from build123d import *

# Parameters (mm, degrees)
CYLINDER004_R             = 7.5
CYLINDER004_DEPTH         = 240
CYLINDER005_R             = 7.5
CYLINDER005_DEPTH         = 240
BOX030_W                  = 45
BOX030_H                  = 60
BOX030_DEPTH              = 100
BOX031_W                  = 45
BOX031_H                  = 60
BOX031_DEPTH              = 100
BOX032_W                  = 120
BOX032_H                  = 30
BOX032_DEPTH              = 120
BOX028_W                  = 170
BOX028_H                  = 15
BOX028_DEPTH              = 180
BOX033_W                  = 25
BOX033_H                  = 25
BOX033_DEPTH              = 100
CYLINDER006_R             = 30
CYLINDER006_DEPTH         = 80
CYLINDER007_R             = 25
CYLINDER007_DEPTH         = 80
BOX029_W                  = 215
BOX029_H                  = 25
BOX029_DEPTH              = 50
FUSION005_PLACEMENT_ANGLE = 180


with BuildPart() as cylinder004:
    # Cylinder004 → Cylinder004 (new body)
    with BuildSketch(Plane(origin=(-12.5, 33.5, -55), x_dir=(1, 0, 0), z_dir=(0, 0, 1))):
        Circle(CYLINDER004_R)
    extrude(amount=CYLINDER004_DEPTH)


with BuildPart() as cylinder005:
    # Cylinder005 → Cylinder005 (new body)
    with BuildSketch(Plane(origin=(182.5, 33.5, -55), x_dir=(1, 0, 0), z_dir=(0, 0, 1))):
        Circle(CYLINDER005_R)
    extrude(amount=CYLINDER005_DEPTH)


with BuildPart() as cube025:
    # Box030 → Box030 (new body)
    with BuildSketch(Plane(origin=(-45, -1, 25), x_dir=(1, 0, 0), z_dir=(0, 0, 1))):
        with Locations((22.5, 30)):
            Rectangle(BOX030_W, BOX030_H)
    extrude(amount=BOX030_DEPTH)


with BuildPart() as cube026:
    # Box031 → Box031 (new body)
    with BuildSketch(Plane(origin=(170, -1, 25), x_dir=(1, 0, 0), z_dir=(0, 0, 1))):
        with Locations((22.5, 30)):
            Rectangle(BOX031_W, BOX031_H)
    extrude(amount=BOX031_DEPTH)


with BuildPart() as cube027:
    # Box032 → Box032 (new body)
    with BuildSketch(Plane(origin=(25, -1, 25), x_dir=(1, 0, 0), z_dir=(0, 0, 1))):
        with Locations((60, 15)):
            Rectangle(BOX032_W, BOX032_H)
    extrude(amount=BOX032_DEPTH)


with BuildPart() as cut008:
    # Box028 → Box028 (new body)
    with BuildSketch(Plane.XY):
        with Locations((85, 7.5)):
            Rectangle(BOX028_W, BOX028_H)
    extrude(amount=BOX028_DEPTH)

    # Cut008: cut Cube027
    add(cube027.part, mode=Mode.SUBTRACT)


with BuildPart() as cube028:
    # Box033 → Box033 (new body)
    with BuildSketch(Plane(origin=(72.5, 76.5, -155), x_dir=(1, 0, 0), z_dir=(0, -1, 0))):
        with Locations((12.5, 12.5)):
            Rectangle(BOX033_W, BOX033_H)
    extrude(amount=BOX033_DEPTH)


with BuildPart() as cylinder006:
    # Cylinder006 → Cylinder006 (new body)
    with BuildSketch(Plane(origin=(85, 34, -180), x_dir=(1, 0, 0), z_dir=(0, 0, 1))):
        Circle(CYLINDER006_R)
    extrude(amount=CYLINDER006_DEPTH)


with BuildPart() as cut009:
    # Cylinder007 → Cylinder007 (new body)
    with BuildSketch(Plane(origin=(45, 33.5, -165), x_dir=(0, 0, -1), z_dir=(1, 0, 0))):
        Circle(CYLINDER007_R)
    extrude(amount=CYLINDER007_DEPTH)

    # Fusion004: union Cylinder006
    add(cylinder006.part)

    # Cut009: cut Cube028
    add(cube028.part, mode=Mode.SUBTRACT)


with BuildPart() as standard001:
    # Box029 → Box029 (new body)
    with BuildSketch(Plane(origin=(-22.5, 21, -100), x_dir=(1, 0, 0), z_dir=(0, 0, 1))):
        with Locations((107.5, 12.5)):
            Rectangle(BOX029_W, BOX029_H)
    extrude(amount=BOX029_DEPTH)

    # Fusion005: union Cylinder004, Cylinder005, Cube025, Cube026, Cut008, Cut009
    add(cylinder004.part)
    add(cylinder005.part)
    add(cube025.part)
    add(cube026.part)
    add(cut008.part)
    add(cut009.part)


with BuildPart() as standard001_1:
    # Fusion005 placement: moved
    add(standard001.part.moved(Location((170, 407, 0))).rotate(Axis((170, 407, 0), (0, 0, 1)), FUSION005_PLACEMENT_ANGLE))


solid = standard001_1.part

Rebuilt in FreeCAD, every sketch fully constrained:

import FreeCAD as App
import Part
import Sketcher

doc = App.newDocument("Part")
body = doc.addObject("PartDesign::Body", "Body")

# Sketch on XY plane
sketch1 = body.newObject("Sketcher::SketchObject", "Sketch")
sketch1.AttachmentSupport = (doc.getObject("XY_Plane"), [""])
sketch1.MapMode = "FlatFace"
sketch1.AttachmentOffset = App.Placement(App.Vector(0, 0, -55), App.Rotation())
sketch1.addGeometry(Part.Circle(App.Vector(-12, 34, 0), App.Vector(0, 0, 1), 8), False)
sketch1.addConstraint([
    Sketcher.Constraint("Diameter", 0, 15.0),
    Sketcher.Constraint("DistanceX", 0, 3, -1, 1, 12.5),
    Sketcher.Constraint("DistanceY", -1, 1, 0, 3, 33.5),
])
pad1 = body.newObject("PartDesign::Pad", "Pad")
pad1.Profile = sketch1
pad1.Length = 240
body2 = doc.addObject("PartDesign::Body", "Body001")

# Sketch on XY plane
sketch2 = body2.newObject("Sketcher::SketchObject", "Sketch001")
sketch2.AttachmentSupport = (doc.getObject("XY_Plane001"), [""])
sketch2.MapMode = "FlatFace"
sketch2.AttachmentOffset = App.Placement(App.Vector(0, 0, -55), App.Rotation())
sketch2.addGeometry(Part.Circle(App.Vector(182, 34, 0), App.Vector(0, 0, 1), 8), False)
sketch2.addConstraint([
    Sketcher.Constraint("Diameter", 0, 15.0),
    Sketcher.Constraint("DistanceX", -1, 1, 0, 3, 182.5),
    Sketcher.Constraint("DistanceY", -1, 1, 0, 3, 33.5),
])
pad2 = body2.newObject("PartDesign::Pad", "Pad001")
pad2.Profile = sketch2
pad2.Length = 240
body3 = doc.addObject("PartDesign::Body", "Body002")

# Sketch on XY plane
sketch3 = body3.newObject("Sketcher::SketchObject", "Sketch002")
sketch3.AttachmentSupport = (doc.getObject("XY_Plane002"), [""])
sketch3.MapMode = "FlatFace"
sketch3.AttachmentOffset = App.Placement(App.Vector(0, 0, 25), App.Rotation())
sketch3.addGeometry([
    Part.LineSegment(App.Vector(-45, 59, 0), App.Vector(-45, -1, 0)),
    Part.LineSegment(App.Vector(-45, -1, 0), App.Vector(0, -1, 0)),
    Part.LineSegment(App.Vector(0, -1, 0), App.Vector(0, 59, 0)),
    Part.LineSegment(App.Vector(0, 59, 0), App.Vector(-45, 59, 0)),
], False)
sketch3.addConstraint([
    Sketcher.Constraint("Coincident", 0, 2, 1, 1),
    Sketcher.Constraint("Coincident", 1, 2, 2, 1),
    Sketcher.Constraint("Coincident", 2, 2, 3, 1),
    Sketcher.Constraint("Coincident", 3, 2, 0, 1),
    Sketcher.Constraint("Vertical", 0),
    Sketcher.Constraint("Horizontal", 1),
    Sketcher.Constraint("Vertical", 2),
    Sketcher.Constraint("Horizontal", 3),
    Sketcher.Constraint("PointOnObject", 1, 2, -2),
    Sketcher.Constraint("DistanceX", 1, 1, 1, 2, 45.0),
    Sketcher.Constraint("DistanceY", 0, 2, 0, 1, 60.0),
    Sketcher.Constraint("DistanceY", 0, 2, -1, 1, 1.0),
])
pad3 = body3.newObject("PartDesign::Pad", "Pad002")
pad3.Profile = sketch3
pad3.Length = 100
body4 = doc.addObject("PartDesign::Body", "Body003")

# Sketch on XY plane
sketch4 = body4.newObject("Sketcher::SketchObject", "Sketch003")
sketch4.AttachmentSupport = (doc.getObject("XY_Plane003"), [""])
sketch4.MapMode = "FlatFace"
sketch4.AttachmentOffset = App.Placement(App.Vector(0, 0, 25), App.Rotation())
sketch4.addGeometry([
    Part.LineSegment(App.Vector(170, 59, 0), App.Vector(170, -1, 0)),
    Part.LineSegment(App.Vector(170, -1, 0), App.Vector(215, -1, 0)),
    Part.LineSegment(App.Vector(215, -1, 0), App.Vector(215, 59, 0)),
    Part.LineSegment(App.Vector(215, 59, 0), App.Vector(170, 59, 0)),
], False)
sketch4.addConstraint([
    Sketcher.Constraint("Coincident", 0, 2, 1, 1),
    Sketcher.Constraint("Coincident", 1, 2, 2, 1),
    Sketcher.Constraint("Coincident", 2, 2, 3, 1),
    Sketcher.Constraint("Coincident", 3, 2, 0, 1),
    Sketcher.Constraint("Vertical", 0),
    Sketcher.Constraint("Horizontal", 1),
    Sketcher.Constraint("Vertical", 2),
    Sketcher.Constraint("Horizontal", 3),
    Sketcher.Constraint("DistanceX", 1, 1, 1, 2, 45.0),
    Sketcher.Constraint("DistanceY", 0, 2, 0, 1, 60.0),
    Sketcher.Constraint("DistanceX", -1, 1, 0, 2, 170.0),
    Sketcher.Constraint("DistanceY", 0, 2, -1, 1, 1.0),
])
pad4 = body4.newObject("PartDesign::Pad", "Pad003")
pad4.Profile = sketch4
pad4.Length = 100
body5 = doc.addObject("PartDesign::Body", "Body004")

# Sketch on XY plane
sketch5 = body5.newObject("Sketcher::SketchObject", "Sketch004")
sketch5.AttachmentSupport = (doc.getObject("XY_Plane004"), [""])
sketch5.MapMode = "FlatFace"
sketch5.AttachmentOffset = App.Placement(App.Vector(0, 0, 25), App.Rotation())
sketch5.addGeometry([
    Part.LineSegment(App.Vector(25, 29, 0), App.Vector(25, -1, 0)),
    Part.LineSegment(App.Vector(25, -1, 0), App.Vector(145, -1, 0)),
    Part.LineSegment(App.Vector(145, -1, 0), App.Vector(145, 29, 0)),
    Part.LineSegment(App.Vector(145, 29, 0), App.Vector(25, 29, 0)),
], False)
sketch5.addConstraint([
    Sketcher.Constraint("Coincident", 0, 2, 1, 1),
    Sketcher.Constraint("Coincident", 1, 2, 2, 1),
    Sketcher.Constraint("Coincident", 2, 2, 3, 1),
    Sketcher.Constraint("Coincident", 3, 2, 0, 1),
    Sketcher.Constraint("Vertical", 0),
    Sketcher.Constraint("Horizontal", 1),
    Sketcher.Constraint("Vertical", 2),
    Sketcher.Constraint("Horizontal", 3),
    Sketcher.Constraint("DistanceX", 1, 1, 1, 2, 120.0),
    Sketcher.Constraint("DistanceY", 0, 2, 0, 1, 30.0),
    Sketcher.Constraint("DistanceX", -1, 1, 0, 2, 25.0),
    Sketcher.Constraint("DistanceY", 0, 2, -1, 1, 1.0),
])
pad5 = body5.newObject("PartDesign::Pad", "Pad004")
pad5.Profile = sketch5
pad5.Length = 120
body6 = doc.addObject("PartDesign::Body", "Body005")

# Sketch on XY plane
sketch6 = body6.newObject("Sketcher::SketchObject", "Sketch005")
sketch6.AttachmentSupport = (doc.getObject("XY_Plane005"), [""])
sketch6.MapMode = "FlatFace"
sketch6.addGeometry([
    Part.LineSegment(App.Vector(0, 15, 0), App.Vector(0, 0, 0)),
    Part.LineSegment(App.Vector(0, 0, 0), App.Vector(170, 0, 0)),
    Part.LineSegment(App.Vector(170, 0, 0), App.Vector(170, 15, 0)),
    Part.LineSegment(App.Vector(170, 15, 0), App.Vector(0, 15, 0)),
], False)
sketch6.addConstraint([
    Sketcher.Constraint("Coincident", 0, 2, 1, 1),
    Sketcher.Constraint("Coincident", 1, 2, 2, 1),
    Sketcher.Constraint("Coincident", 2, 2, 3, 1),
    Sketcher.Constraint("Coincident", 3, 2, 0, 1),
    Sketcher.Constraint("Vertical", 0),
    Sketcher.Constraint("Horizontal", 1),
    Sketcher.Constraint("Vertical", 2),
    Sketcher.Constraint("Horizontal", 3),
    Sketcher.Constraint("Coincident", 0, 2, -1, 1),
    Sketcher.Constraint("DistanceX", 1, 1, 1, 2, 170.0),
    Sketcher.Constraint("DistanceY", 0, 2, 0, 1, 15.0),
])
pad6 = body6.newObject("PartDesign::Pad", "Pad005")
pad6.Profile = sketch6
pad6.Length = 180
doc.recompute()

boolean = body6.newObject("PartDesign::Boolean", "Boolean")
boolean.Type = "Cut"
boolean.addObjects([body5])
body7 = doc.addObject("PartDesign::Body", "Body006")

# Sketch on XZ plane
sketch7 = body7.newObject("Sketcher::SketchObject", "Sketch006")
sketch7.AttachmentSupport = (doc.getObject("XZ_Plane006"), [""])
sketch7.MapMode = "FlatFace"
sketch7.AttachmentOffset = App.Placement(App.Vector(0, 0, -76.5), App.Rotation())
sketch7.addGeometry([
    Part.LineSegment(App.Vector(72, -130, 0), App.Vector(72, -155, 0)),
    Part.LineSegment(App.Vector(72, -155, 0), App.Vector(98, -155, 0)),
    Part.LineSegment(App.Vector(98, -155, 0), App.Vector(98, -130, 0)),
    Part.LineSegment(App.Vector(98, -130, 0), App.Vector(72, -130, 0)),
], False)
sketch7.addConstraint([
    Sketcher.Constraint("Coincident", 0, 2, 1, 1),
    Sketcher.Constraint("Coincident", 1, 2, 2, 1),
    Sketcher.Constraint("Coincident", 2, 2, 3, 1),
    Sketcher.Constraint("Coincident", 3, 2, 0, 1),
    Sketcher.Constraint("Vertical", 0),
    Sketcher.Constraint("Horizontal", 1),
    Sketcher.Constraint("Vertical", 2),
    Sketcher.Constraint("Horizontal", 3),
    Sketcher.Constraint("Equal", 3, 0),
    Sketcher.Constraint("DistanceX", 1, 1, 1, 2, 25.0),
    Sketcher.Constraint("DistanceY", 0, 2, -1, 1, 155.0),
    Sketcher.Constraint("DistanceX", -1, 1, 0, 2, 72.5),
])
pad7 = body7.newObject("PartDesign::Pad", "Pad006")
pad7.Profile = sketch7
pad7.Length = 100
body8 = doc.addObject("PartDesign::Body", "Body007")

# Sketch on XY plane
sketch8 = body8.newObject("Sketcher::SketchObject", "Sketch007")
sketch8.AttachmentSupport = (doc.getObject("XY_Plane007"), [""])
sketch8.MapMode = "FlatFace"
sketch8.AttachmentOffset = App.Placement(App.Vector(0, 0, -180), App.Rotation())
sketch8.addGeometry(Part.Circle(App.Vector(85, 34, 0), App.Vector(0, 0, 1), 30), False)
sketch8.addConstraint([
    Sketcher.Constraint("Diameter", 0, 60.0),
    Sketcher.Constraint("DistanceX", -1, 1, 0, 3, 85.0),
    Sketcher.Constraint("DistanceY", -1, 1, 0, 3, 34.0),
])
pad8 = body8.newObject("PartDesign::Pad", "Pad007")
pad8.Profile = sketch8
pad8.Length = 80
body9 = doc.addObject("PartDesign::Body", "Body008")

# Sketch on YZ plane
sketch9 = body9.newObject("Sketcher::SketchObject", "Sketch008")
sketch9.AttachmentSupport = (doc.getObject("YZ_Plane008"), [""])
sketch9.MapMode = "FlatFace"
sketch9.AttachmentOffset = App.Placement(App.Vector(0, 0, 45), App.Rotation())
sketch9.addGeometry(Part.Circle(App.Vector(34, -165, 0), App.Vector(0, 0, 1), 25), False)
sketch9.addConstraint([
    Sketcher.Constraint("Diameter", 0, 50.0),
    Sketcher.Constraint("DistanceY", 0, 3, -1, 1, 165.0),
    Sketcher.Constraint("DistanceX", -1, 1, 0, 3, 33.5),
])
pad9 = body9.newObject("PartDesign::Pad", "Pad008")
pad9.Profile = sketch9
pad9.Length = 80
doc.recompute()

boolean2 = body9.newObject("PartDesign::Boolean", "Boolean001")
boolean2.Type = "Fuse"
boolean2.addObjects([body8])
doc.recompute()

boolean3 = body9.newObject("PartDesign::Boolean", "Boolean002")
boolean3.Type = "Cut"
boolean3.addObjects([body7])
body10 = doc.addObject("PartDesign::Body", "Body009")

# Sketch on XY plane
sketch10 = body10.newObject("Sketcher::SketchObject", "Sketch009")
sketch10.AttachmentSupport = (doc.getObject("XY_Plane009"), [""])
sketch10.MapMode = "FlatFace"
sketch10.AttachmentOffset = App.Placement(App.Vector(0, 0, -100), App.Rotation())
sketch10.addGeometry([
    Part.LineSegment(App.Vector(-22, 46, 0), App.Vector(-22, 21, 0)),
    Part.LineSegment(App.Vector(-22, 21, 0), App.Vector(192, 21, 0)),
    Part.LineSegment(App.Vector(192, 21, 0), App.Vector(192, 46, 0)),
    Part.LineSegment(App.Vector(192, 46, 0), App.Vector(-22, 46, 0)),
], False)
sketch10.addConstraint([
    Sketcher.Constraint("Coincident", 0, 2, 1, 1),
    Sketcher.Constraint("Coincident", 1, 2, 2, 1),
    Sketcher.Constraint("Coincident", 2, 2, 3, 1),
    Sketcher.Constraint("Coincident", 3, 2, 0, 1),
    Sketcher.Constraint("Vertical", 0),
    Sketcher.Constraint("Horizontal", 1),
    Sketcher.Constraint("Vertical", 2),
    Sketcher.Constraint("Horizontal", 3),
    Sketcher.Constraint("DistanceX", 1, 1, 1, 2, 215.0),
    Sketcher.Constraint("DistanceY", 0, 2, 0, 1, 25.0),
    Sketcher.Constraint("DistanceY", -1, 1, 0, 2, 21.0),
    Sketcher.Constraint("DistanceX", 0, 2, -1, 1, 22.5),
])
pad10 = body10.newObject("PartDesign::Pad", "Pad009")
pad10.Profile = sketch10
pad10.Length = 50
doc.recompute()

boolean4 = body10.newObject("PartDesign::Boolean", "Boolean003")
boolean4.Type = "Fuse"
boolean4.addObjects([body])
doc.recompute()

boolean5 = body10.newObject("PartDesign::Boolean", "Boolean004")
boolean5.Type = "Fuse"
boolean5.addObjects([body2])
doc.recompute()

boolean6 = body10.newObject("PartDesign::Boolean", "Boolean005")
boolean6.Type = "Fuse"
boolean6.addObjects([body3])
doc.recompute()

boolean7 = body10.newObject("PartDesign::Boolean", "Boolean006")
boolean7.Type = "Fuse"
boolean7.addObjects([body4])
doc.recompute()

boolean8 = body10.newObject("PartDesign::Boolean", "Boolean007")
boolean8.Type = "Fuse"
boolean8.addObjects([body6])
doc.recompute()

boolean9 = body10.newObject("PartDesign::Boolean", "Boolean008")
boolean9.Type = "Fuse"
boolean9.addObjects([body9])
body11 = doc.addObject("PartDesign::Body", "Body010")
doc.recompute()

body10.Placement = App.Placement(App.Vector(170, 407, 0), App.Rotation(App.Vector(0, 0, 1), 180))
boolean10 = body11.newObject("PartDesign::Boolean", "Boolean009")
boolean10.Type = "Fuse"
boolean10.addObjects([body10])

doc.recompute()
